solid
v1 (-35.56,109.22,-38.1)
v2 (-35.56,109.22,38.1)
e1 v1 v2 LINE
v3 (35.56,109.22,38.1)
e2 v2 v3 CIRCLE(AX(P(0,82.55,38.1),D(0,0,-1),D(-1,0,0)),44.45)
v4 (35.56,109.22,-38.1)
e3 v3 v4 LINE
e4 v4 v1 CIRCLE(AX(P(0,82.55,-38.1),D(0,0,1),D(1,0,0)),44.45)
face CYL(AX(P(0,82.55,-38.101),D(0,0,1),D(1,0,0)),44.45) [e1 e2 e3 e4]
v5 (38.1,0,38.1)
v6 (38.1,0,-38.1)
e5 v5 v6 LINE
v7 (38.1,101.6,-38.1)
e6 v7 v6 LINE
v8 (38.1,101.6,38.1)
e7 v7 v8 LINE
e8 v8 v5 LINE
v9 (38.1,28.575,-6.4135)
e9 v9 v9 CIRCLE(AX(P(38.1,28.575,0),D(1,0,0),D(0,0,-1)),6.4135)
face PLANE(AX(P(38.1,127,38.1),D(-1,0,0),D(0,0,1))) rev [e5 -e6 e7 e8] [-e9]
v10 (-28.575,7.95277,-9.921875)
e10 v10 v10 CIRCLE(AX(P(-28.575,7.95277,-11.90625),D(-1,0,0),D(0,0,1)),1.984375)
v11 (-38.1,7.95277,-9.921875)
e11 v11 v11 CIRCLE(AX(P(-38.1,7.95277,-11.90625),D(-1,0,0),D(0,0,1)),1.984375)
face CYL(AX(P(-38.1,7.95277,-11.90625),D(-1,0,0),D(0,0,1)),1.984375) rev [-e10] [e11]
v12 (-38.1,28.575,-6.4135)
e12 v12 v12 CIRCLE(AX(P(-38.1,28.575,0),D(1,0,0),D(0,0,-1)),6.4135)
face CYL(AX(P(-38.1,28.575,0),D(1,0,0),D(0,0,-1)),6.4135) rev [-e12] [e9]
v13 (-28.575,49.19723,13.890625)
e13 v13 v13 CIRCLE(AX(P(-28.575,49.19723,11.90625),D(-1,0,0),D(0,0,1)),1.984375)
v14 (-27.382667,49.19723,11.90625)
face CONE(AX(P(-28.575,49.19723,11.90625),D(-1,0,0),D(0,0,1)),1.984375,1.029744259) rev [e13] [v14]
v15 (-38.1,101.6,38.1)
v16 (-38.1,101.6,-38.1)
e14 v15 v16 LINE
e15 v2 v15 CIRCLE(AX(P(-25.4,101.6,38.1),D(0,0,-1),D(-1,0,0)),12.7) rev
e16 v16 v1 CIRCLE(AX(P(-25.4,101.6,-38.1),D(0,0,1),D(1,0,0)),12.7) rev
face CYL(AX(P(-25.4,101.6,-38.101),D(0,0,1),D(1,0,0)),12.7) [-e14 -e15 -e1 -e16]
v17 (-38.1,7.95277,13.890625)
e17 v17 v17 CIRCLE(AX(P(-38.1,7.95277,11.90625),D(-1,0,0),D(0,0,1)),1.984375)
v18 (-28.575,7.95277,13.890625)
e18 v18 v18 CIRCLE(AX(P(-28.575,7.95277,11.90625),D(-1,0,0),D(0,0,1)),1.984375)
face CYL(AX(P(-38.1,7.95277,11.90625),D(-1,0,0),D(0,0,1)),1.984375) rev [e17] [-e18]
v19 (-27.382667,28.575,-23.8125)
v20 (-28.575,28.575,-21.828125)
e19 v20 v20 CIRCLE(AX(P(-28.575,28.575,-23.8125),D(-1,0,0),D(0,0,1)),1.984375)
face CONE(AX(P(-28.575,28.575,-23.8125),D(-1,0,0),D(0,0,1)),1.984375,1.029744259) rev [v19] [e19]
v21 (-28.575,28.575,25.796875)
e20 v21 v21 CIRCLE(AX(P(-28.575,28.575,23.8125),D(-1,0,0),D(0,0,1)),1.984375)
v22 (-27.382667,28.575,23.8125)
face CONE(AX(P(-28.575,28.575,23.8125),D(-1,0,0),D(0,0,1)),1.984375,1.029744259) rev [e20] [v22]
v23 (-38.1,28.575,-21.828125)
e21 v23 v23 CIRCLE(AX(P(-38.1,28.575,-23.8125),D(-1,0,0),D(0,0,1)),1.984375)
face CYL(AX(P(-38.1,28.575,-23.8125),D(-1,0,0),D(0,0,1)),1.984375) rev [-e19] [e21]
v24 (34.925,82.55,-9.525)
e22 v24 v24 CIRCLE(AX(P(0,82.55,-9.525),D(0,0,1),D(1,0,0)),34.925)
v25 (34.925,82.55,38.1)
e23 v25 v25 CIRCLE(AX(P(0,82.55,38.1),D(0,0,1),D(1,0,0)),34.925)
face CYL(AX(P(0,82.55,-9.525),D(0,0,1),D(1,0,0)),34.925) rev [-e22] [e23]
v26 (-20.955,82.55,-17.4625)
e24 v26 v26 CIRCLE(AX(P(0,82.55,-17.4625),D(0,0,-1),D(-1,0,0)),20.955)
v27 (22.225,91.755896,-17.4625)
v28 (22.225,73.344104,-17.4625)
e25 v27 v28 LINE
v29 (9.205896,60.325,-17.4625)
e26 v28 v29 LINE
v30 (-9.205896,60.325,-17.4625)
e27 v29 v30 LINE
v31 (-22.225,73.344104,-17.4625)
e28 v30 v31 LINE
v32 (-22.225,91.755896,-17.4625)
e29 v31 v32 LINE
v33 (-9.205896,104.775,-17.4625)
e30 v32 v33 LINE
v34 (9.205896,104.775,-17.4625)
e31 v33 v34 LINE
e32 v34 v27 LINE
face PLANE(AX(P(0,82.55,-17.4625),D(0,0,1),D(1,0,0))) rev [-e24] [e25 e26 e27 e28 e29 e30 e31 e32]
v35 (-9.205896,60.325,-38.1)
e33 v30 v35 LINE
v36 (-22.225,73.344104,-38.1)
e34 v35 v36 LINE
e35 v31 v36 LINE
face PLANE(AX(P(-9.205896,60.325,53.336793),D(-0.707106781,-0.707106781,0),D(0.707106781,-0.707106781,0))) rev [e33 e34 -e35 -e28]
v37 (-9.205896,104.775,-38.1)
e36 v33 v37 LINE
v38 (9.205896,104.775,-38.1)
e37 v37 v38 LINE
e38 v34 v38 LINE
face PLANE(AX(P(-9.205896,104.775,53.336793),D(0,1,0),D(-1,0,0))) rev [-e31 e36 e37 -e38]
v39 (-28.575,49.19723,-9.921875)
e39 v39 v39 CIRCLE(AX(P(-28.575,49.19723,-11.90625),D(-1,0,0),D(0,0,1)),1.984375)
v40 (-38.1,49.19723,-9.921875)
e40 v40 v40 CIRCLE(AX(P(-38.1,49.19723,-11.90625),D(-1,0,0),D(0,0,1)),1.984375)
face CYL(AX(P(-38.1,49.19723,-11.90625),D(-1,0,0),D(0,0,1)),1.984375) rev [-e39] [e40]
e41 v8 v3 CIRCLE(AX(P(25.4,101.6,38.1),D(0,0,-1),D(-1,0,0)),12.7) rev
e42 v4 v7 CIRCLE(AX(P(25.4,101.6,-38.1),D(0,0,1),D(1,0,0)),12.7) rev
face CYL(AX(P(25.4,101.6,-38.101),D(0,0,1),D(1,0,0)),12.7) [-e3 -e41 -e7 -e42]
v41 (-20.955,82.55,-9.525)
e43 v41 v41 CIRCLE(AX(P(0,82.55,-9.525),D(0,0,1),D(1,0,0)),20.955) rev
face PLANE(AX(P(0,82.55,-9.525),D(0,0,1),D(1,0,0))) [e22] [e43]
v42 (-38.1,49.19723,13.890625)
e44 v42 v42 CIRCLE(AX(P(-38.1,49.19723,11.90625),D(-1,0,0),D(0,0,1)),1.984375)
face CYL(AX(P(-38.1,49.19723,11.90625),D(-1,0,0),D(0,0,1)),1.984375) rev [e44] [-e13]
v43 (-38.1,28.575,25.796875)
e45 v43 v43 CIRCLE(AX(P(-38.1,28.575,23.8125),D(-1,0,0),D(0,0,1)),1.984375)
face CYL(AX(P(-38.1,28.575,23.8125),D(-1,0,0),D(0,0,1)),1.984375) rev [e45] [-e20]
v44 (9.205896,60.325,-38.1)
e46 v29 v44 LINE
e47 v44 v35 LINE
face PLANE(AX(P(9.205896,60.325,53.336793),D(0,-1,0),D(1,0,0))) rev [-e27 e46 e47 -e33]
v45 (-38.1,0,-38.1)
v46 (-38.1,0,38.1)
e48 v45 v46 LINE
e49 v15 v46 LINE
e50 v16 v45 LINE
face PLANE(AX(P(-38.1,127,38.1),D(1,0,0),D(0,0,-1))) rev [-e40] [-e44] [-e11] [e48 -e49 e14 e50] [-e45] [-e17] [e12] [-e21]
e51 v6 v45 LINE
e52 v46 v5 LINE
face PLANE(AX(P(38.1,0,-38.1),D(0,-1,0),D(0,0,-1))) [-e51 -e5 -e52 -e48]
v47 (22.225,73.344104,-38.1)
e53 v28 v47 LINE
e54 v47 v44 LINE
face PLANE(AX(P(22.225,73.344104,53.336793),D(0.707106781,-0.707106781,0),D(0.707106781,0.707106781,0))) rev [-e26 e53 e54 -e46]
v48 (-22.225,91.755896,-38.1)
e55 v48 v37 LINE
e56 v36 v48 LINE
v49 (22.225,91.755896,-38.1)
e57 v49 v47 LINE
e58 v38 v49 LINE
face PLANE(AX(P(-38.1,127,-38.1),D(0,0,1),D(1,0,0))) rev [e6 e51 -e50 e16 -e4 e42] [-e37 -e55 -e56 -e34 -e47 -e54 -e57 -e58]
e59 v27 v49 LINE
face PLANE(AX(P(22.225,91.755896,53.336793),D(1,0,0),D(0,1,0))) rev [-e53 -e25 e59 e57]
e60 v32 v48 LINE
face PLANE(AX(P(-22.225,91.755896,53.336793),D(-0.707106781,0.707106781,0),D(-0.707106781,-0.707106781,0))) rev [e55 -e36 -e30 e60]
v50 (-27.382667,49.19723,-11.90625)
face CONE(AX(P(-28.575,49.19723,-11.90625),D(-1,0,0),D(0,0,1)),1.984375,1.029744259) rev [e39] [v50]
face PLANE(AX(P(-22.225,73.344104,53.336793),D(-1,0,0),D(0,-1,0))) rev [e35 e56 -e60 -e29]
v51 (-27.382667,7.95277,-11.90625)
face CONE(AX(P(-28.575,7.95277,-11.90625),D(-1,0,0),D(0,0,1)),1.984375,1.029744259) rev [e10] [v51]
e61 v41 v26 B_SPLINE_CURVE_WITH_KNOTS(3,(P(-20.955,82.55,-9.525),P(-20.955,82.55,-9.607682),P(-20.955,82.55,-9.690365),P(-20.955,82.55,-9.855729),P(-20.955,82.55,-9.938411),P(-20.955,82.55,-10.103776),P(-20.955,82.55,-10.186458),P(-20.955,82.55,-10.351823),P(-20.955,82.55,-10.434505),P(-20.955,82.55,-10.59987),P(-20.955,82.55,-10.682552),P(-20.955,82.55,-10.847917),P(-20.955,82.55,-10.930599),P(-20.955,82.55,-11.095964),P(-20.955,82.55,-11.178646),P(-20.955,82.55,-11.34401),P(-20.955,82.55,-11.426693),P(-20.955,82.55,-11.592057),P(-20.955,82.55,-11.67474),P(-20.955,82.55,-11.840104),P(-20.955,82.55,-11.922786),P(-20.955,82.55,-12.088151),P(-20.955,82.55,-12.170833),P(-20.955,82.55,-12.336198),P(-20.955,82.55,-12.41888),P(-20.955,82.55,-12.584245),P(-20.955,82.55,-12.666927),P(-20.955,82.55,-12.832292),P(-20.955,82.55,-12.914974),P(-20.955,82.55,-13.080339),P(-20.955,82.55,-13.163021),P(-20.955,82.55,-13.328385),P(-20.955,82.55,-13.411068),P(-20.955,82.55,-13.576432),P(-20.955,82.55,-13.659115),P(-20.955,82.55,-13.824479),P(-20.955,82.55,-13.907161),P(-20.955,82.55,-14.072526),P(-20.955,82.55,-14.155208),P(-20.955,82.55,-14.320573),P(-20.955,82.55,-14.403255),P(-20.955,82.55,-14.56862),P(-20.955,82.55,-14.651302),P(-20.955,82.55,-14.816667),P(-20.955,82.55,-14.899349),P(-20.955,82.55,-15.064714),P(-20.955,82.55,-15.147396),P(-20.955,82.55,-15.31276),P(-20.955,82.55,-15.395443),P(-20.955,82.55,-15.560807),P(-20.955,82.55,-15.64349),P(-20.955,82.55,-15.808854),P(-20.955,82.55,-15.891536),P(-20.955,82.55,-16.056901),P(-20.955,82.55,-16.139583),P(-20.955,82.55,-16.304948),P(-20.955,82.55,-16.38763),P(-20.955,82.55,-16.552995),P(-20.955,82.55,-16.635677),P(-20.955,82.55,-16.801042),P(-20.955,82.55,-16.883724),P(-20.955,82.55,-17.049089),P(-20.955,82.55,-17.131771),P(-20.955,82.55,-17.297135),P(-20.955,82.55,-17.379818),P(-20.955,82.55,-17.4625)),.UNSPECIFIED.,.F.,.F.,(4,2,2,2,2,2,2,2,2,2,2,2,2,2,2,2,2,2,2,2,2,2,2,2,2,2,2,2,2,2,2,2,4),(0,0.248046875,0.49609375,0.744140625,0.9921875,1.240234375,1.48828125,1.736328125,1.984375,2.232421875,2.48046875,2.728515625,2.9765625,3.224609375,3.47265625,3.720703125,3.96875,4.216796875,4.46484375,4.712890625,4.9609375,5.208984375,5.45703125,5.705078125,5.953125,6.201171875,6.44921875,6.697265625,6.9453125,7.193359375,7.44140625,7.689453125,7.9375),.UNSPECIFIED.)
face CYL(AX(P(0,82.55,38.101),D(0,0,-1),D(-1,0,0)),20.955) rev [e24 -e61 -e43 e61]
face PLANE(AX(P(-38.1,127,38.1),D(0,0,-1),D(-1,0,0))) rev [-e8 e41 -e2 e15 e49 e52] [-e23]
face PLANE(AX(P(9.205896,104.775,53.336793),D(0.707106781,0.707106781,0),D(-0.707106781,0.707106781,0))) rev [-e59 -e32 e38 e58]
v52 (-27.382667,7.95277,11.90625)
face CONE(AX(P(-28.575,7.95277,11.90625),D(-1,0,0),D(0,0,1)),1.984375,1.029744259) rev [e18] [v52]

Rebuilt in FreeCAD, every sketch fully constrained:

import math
import FreeCAD as App
import Part
import Sketcher

V = App.Vector
Q = App.Units.Quantity


def edges_at(feature, points):
    """Names of the edges that pass closest to the given points."""
    edges = feature.Shape.Edges
    near = lambda p: min(range(len(edges)), key=lambda i: edges[i].distToShape(Part.Vertex(*p))[0])
    return sorted({f"Edge{near(p) + 1}" for p in points})


def add_polygon(sketch, points):
    """Adds a closed chain of lines whose ends are joined by coincident constraints."""
    first, n = sketch.GeometryCount, len(points)
    for a, b in zip(points, points[1:] + points[:1]):
        sketch.addGeometry(Part.LineSegment(App.Vector(*a, 0), App.Vector(*b, 0)), False)
    for i in range(n):
        sketch.addConstraint(Sketcher.Constraint("Coincident", first + i, 2, first + (i + 1) % n, 1))

doc = App.newDocument("Part")
params = doc.addObject("Spreadsheet::Sheet", "Params")
for row, (alias, value) in enumerate([
    ("sketch1_width", "3 in"),
    ("pad1_length", "5 in"),
    ("sketch2_diameter", "2.75 in"),
    ("pocket1_length", "1.875 in"),
    ("pocket2_length", "0.8125 in"),
    ("sketch4_diameter", "1.65 in"),
    ("sketch5_width", "3 in"),
    ("sketch5_height", "1 in"),
    ("sketch5_radius", "1.75 in"),
    ("pocket4_length", "3 in"),
    ("fillet_radius", "0.5 in"),
    ("sketch6_diameter", "0.505 in"),
    ("sketch7_width", "0.375 in"),
    ("sketch7_height", "0.078125 in"),
    ("groove_angle", "360 deg"),
], start=1):
    params.set(f"A{row}", alias)
    params.set(f"B{row}", "=" + value)
    params.setAlias(f"B{row}", alias)

body = doc.addObject("PartDesign::Body", "Body")

sketch1 = doc.addObject("Sketcher::SketchObject", "Sketch")
body.addObject(sketch1)
sketch1.AttachmentSupport = (doc.XZ_Plane, [""])
sketch1.MapMode = "FlatFace"
add_polygon(sketch1, [(-38, -38), (-38, 38), (38, 38), (38, -38)])
sketch1.addConstraint([
    Sketcher.Constraint("Vertical", 0),
    Sketcher.Constraint("Horizontal", 1),
    Sketcher.Constraint("Vertical", 2),
    Sketcher.Constraint("Horizontal", 3),
    Sketcher.Constraint("Symmetric", 0, 2, 2, 2, -1, 1),
    Sketcher.Constraint("Equal", 3, 0),
    Sketcher.Constraint("DistanceX", 1, 1, 1, 2, Q("3 in")),
])
sketch1.setExpression("Constraints[10]", "Params.sketch1_width")
pad1 = doc.addObject("PartDesign::Pad", "Pad")
body.addObject(pad1)
pad1.Profile = sketch1
pad1.setExpression("Length", "Params.pad1_length")
pad1.Reversed = True

sketch2 = doc.addObject("Sketcher::SketchObject", "Sketch001")
body.addObject(sketch2)
sketch2.AttachmentSupport = (doc.XY_Plane, [""])
sketch2.MapMode = "FlatFace"
sketch2.AttachmentOffset = App.Placement(V(0, 0, 1.5 * 25.4), App.Rotation())
sketch2.addGeometry(Part.Circle(V(0, 83, 0), V(0, 0, 1), 35), False)
sketch2.addConstraint([
    Sketcher.Constraint("PointOnObject", 0, 3, -2),
    Sketcher.Constraint("Diameter", 0, Q("2.75 in")),
    Sketcher.Constraint("DistanceY", -1, 1, 0, 3, Q("3.25 in")),
])
sketch2.setExpression("Constraints[1]", "Params.sketch2_diameter")
pocket1 = doc.addObject("PartDesign::Pocket", "Pocket")
body.addObject(pocket1)
pocket1.Profile = sketch2
pocket1.setExpression("Length", "Params.pocket1_length")

sketch3 = doc.addObject("Sketcher::SketchObject", "Sketch002")
body.addObject(sketch3)
sketch3.AttachmentSupport = (doc.XY_Plane, [""])
sketch3.MapMode = "FlatFace"
sketch3.AttachmentOffset = App.Placement(V(0, 0, -1.5 * 25.4), App.Rotation())
add_polygon(sketch3, [(-22, 73), (-22, 92), (-9, 105), (9, 105), (22, 92), (22, 73), (9, 60), (-9, 60)])
sketch3.addConstraint([
    Sketcher.Constraint("Vertical", 0),
    Sketcher.Constraint("Horizontal", 2),
    Sketcher.Constraint("Vertical", 4),
    Sketcher.Constraint("Horizontal", 6),
    Sketcher.Constraint("Symmetric", 0, 2, 3, 2, -2),
    Sketcher.Constraint("Perpendicular", 1, 3),
    Sketcher.Constraint("Perpendicular", 3, 5),
    Sketcher.Constraint("Perpendicular", 5, 7),
    Sketcher.Constraint("Horizontal", 4, 2, 7, 2),
    Sketcher.Constraint("Vertical", 2, 2, 5, 2),
    Sketcher.Constraint("Vertical", 1, 2, 6, 2),
    Sketcher.Constraint("Equal", 6, 0),
    Sketcher.Constraint("DistanceX", 0, 2, 3, 2, Q("1.75 in")),
    Sketcher.Constraint("DistanceY", -1, 1, 1, 2, Q("4.125 in")),
    Sketcher.Constraint("DistanceX", 2, 1, 2, 2, 18.411793),
])
pocket2 = doc.addObject("PartDesign::Pocket", "Pocket001")
body.addObject(pocket2)
pocket2.Profile = sketch3
pocket2.setExpression("Length", "Params.pocket2_length")
pocket2.Reversed = True

sketch4 = doc.addObject("Sketcher::SketchObject", "Sketch003")
body.addObject(sketch4)
sketch4.AttachmentSupport = (doc.XY_Plane, [""])
sketch4.MapMode = "FlatFace"
sketch4.AttachmentOffset = App.Placement(V(0, 0, -0.6875 * 25.4), App.Rotation())
sketch4.addGeometry(Part.Circle(V(0, 83, 0), V(0, 0, 1), 21), False)
sketch4.addConstraint([
    Sketcher.Constraint("PointOnObject", 0, 3, -2),
    Sketcher.Constraint("Diameter", 0, Q("1.65 in")),
    Sketcher.Constraint("DistanceY", -1, 1, 0, 3, Q("3.25 in")),
])
sketch4.setExpression("Constraints[1]", "Params.sketch4_diameter")
pocket3 = doc.addObject("PartDesign::Pocket", "Pocket002")
body.addObject(pocket3)
pocket3.Profile = sketch4
pocket3.Type = "UpToFirst"
pocket3.Reversed = True

sketch5 = doc.addObject("Sketcher::SketchObject", "Sketch004")
body.addObject(sketch5)
sketch5.AttachmentSupport = (doc.XY_Plane, [""])
sketch5.MapMode = "FlatFace"
sketch5.AttachmentOffset = App.Placement(V(0, 0, -1.5 * 25.4), App.Rotation())
sketch5.addGeometry([
    Part.LineSegment(V(-38, 131, 0), V(-38, 105, 0)),
    Part.ArcOfCircle(Part.Circle(V(0, 83, 0), V(0, 0, 1), 44), math.radians(31), math.radians(149)),
    Part.LineSegment(V(38, 105, 0), V(38, 131, 0)),
    Part.LineSegment(V(38, 131, 0), V(-38, 131, 0)),
], False)
sketch5.addConstraint([
    Sketcher.Constraint("Coincident", 0, 2, 1, 2),
    Sketcher.Constraint("Coincident", 1, 1, 2, 1),
    Sketcher.Constraint("Coincident", 2, 2, 3, 1),
    Sketcher.Constraint("Coincident", 3, 2, 0, 1),
    Sketcher.Constraint("Vertical", 0),
    Sketcher.Constraint("Vertical", 2),
    Sketcher.Constraint("Horizontal", 3),
    Sketcher.Constraint("Symmetric", 0, 2, 1, 1, -2),
    Sketcher.Constraint("DistanceX", 3, 2, 3, 1, Q("3 in")),
    Sketcher.Constraint("DistanceY", 0, 2, 0, 1, Q("1 in")),
    Sketcher.Constraint("Radius", 1, Q("1.75 in")),
    Sketcher.Constraint("DistanceY", -1, 1, 1, 3, Q("3.25 in")),
])
sketch5.setExpression("Constraints[8]", "Params.sketch5_width")
sketch5.setExpression("Constraints[9]", "Params.sketch5_height")
sketch5.setExpression("Constraints[10]", "Params.sketch5_radius")
pocket4 = doc.addObject("PartDesign::Pocket", "Pocket003")
body.addObject(pocket4)
pocket4.Profile = sketch5
pocket4.setExpression("Length", "Params.pocket4_length")
pocket4.Reversed = True
doc.recompute()

fillet = doc.addObject("PartDesign::Fillet", "Fillet")
body.addObject(fillet)
fillet.Base = (pocket4, edges_at(pocket4, [(-38.1, 105.445, 0), (38.1, 105.445, 0)]))
fillet.setExpression("Radius", "Params.fillet_radius")

sketch6 = doc.addObject("Sketcher::SketchObject", "Sketch005")
body.addObject(sketch6)
sketch6.AttachmentSupport = (doc.YZ_Plane, [""])
sketch6.MapMode = "FlatFace"
sketch6.AttachmentOffset = App.Placement(V(0, 0, 1.5 * 25.4), App.Rotation())
sketch6.addGeometry(Part.Circle(V(29, 0, 0), V(0, 0, 1), 6), False)
sketch6.addConstraint([
    Sketcher.Constraint("PointOnObject", 0, 3, -1),
    Sketcher.Constraint("Diameter", 0, Q("0.505 in")),
    Sketcher.Constraint("DistanceX", -1, 1, 0, 3, Q("1.125 in")),
])
sketch6.setExpression("Constraints[1]", "Params.sketch6_diameter")
pocket5 = doc.addObject("PartDesign::Pocket", "Pocket004")
body.addObject(pocket5)
pocket5.Profile = sketch6
pocket5.Type = "ThroughAll"

sketch7 = doc.addObject("Sketcher::SketchObject", "Sketch006")
body.addObject(sketch7)
sketch7.AttachmentSupport = (doc.XZ_Plane, [""])
sketch7.MapMode = "FlatFace"
sketch7.AttachmentOffset = App.Placement(V(0, 0, -1.125 * 25.4), App.Rotation())
add_polygon(sketch7, [(-27.4, 23.8), (-38.1, 23.8), (-38.1, 25.8), (-28.6, 25.8)])
sketch7.addGeometry(Part.LineSegment(V(-38.1, 23.8, 0), V(-27.4, 23.8, 0)), True)
sketch7.addConstraint([
    Sketcher.Constraint("Horizontal", 0),
    Sketcher.Constraint("Vertical", 1),
    Sketcher.Constraint("Horizontal", 2),
    Sketcher.Constraint("Horizontal", 4),
    Sketcher.Constraint("Coincident", 4, 1, 0, 2),
    Sketcher.Constraint("Equal", 0, 4),
    Sketcher.Constraint("Angle", 3, Q("-59 deg")),
    Sketcher.Constraint("DistanceX", 0, 2, -1, 1, Q("1.5 in")),
    Sketcher.Constraint("DistanceX", 2, 1, 2, 2, Q("0.375 in")),
    Sketcher.Constraint("DistanceY", 1, 1, 1, 2, Q("0.078125 in")),
    Sketcher.Constraint("DistanceY", -1, 1, 0, 2, Q("0.9375 in")),
])
sketch7.setExpression("Constraints[12]", "Params.sketch7_width")
sketch7.setExpression("Constraints[13]", "Params.sketch7_height")
groove = doc.addObject("PartDesign::Groove", "Groove")
body.addObject(groove)
groove.Profile = sketch7
groove.ReferenceAxis = (sketch7, ["Axis0"])
groove.setExpression("Angle", "Params.groove_angle")
doc.recompute()

datumline = doc.addObject("PartDesign::Line", "DatumLine")
body.addObject(datumline)
datumline.Placement = App.Placement(V(0, 28.575, 0), App.Rotation(V(0, 0, 1), V(1, 0, 0)))
polarpattern = doc.addObject("PartDesign::PolarPattern", "PolarPattern")
body.addObject(polarpattern)
polarpattern.Originals = [groove]
polarpattern.Axis = (datumline, [""])
polarpattern.Angle = 360
polarpattern.Occurrences = 6
body.Tip = polarpattern

doc.recompute()
